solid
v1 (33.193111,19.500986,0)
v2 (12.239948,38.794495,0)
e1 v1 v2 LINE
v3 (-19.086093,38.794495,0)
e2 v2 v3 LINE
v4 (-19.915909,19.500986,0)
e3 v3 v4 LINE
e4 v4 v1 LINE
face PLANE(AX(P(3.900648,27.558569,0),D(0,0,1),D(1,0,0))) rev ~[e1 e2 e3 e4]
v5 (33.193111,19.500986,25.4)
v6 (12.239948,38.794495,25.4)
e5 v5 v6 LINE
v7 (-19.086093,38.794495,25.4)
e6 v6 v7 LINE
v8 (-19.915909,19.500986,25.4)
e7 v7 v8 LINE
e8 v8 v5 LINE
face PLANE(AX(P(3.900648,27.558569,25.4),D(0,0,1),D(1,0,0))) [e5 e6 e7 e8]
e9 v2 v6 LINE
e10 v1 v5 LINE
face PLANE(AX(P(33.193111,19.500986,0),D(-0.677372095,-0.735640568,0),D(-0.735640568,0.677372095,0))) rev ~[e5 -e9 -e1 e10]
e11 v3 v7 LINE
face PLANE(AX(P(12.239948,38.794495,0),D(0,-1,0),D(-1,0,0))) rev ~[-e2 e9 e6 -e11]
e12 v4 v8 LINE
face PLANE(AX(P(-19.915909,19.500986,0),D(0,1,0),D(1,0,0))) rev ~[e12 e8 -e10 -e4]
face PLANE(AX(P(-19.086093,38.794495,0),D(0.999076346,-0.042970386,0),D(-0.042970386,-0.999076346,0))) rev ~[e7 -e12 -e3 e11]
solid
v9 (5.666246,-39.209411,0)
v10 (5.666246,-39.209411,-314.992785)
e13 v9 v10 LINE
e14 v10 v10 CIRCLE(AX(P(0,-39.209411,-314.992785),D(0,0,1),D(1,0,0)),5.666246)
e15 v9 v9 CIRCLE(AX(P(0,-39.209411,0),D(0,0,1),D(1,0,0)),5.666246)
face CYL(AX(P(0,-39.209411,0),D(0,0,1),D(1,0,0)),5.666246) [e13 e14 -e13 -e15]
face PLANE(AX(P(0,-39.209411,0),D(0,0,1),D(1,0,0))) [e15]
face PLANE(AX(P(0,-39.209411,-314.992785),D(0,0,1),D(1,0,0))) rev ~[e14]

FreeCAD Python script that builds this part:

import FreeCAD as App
import Part
import Sketcher
from FreeCAD import Vector
Q = App.Units.Quantity


def add_polygon(sketch, points):
    """Adds a closed chain of lines whose ends are joined by coincident constraints."""
    first, n = sketch.GeometryCount, len(points)
    for a, b in zip(points, points[1:] + points[:1]):
        sketch.addGeometry(Part.LineSegment(App.Vector(*a, 0), App.Vector(*b, 0)), False)
    for i in range(n):
        sketch.addConstraint(Sketcher.Constraint("Coincident", first + i, 2, first + (i + 1) % n, 1))

doc = App.newDocument("Part")
body = doc.addObject("PartDesign::Body", "Body")

# Sketch on XY plane
sketch1 = doc.addObject("Sketcher::SketchObject", "Sketch")
body.addObject(sketch1)
sketch1.AttachmentSupport = (doc.XY_Plane, [""])
sketch1.MapMode = "FlatFace"
add_polygon(sketch1, [(12, 39), (-19, 39), (-20, 20), (33, 20)])  # lines 0-3
sketch1.addConstraint([
    Sketcher.Constraint("Horizontal", 0),
    Sketcher.Constraint("Horizontal", 2),
    Sketcher.Constraint("DistanceX", 0, 2, 0, 1, 31.326041),
    Sketcher.Constraint("DistanceX", 2, 1, 2, 2, 53.10902),
    Sketcher.Constraint("Distance", 3, 28.482881),
    Sketcher.Constraint("DistanceX", 1, 2, -1, 1, 19.915909),
    Sketcher.Constraint("DistanceY", 1, 2, 0, 2, 19.293509),
    Sketcher.Constraint("DistanceY", -1, 1, 0, 2, 38.794495),
])
pad1 = doc.addObject("PartDesign::Pad", "Pad")
body.addObject(pad1)
pad1.Profile = sketch1
pad1.Length = Q("1 in")
body2 = doc.addObject("PartDesign::Body", "Body001")

# Sketch on XY plane
sketch2 = doc.addObject("Sketcher::SketchObject", "Sketch001")
body2.addObject(sketch2)
sketch2.AttachmentSupport = (doc.getObject("XY_Plane001"), [""])
sketch2.MapMode = "FlatFace"
sketch2.addGeometry(Part.Circle(Vector(0, -39, 0), Vector(0, 0, 1), 6), False)
sketch2.addConstraint([
    Sketcher.Constraint("PointOnObject", 0, 3, -2),
    Sketcher.Constraint("Diameter", 0, 11.332492),
    Sketcher.Constraint("DistanceY", 0, 3, -1, 1, 39.209411),
])
pad2 = doc.addObject("PartDesign::Pad", "Pad001")
body2.addObject(pad2)
pad2.Profile = sketch2
pad2.Length = 314.992785
pad2.Reversed = True

doc.recompute()
